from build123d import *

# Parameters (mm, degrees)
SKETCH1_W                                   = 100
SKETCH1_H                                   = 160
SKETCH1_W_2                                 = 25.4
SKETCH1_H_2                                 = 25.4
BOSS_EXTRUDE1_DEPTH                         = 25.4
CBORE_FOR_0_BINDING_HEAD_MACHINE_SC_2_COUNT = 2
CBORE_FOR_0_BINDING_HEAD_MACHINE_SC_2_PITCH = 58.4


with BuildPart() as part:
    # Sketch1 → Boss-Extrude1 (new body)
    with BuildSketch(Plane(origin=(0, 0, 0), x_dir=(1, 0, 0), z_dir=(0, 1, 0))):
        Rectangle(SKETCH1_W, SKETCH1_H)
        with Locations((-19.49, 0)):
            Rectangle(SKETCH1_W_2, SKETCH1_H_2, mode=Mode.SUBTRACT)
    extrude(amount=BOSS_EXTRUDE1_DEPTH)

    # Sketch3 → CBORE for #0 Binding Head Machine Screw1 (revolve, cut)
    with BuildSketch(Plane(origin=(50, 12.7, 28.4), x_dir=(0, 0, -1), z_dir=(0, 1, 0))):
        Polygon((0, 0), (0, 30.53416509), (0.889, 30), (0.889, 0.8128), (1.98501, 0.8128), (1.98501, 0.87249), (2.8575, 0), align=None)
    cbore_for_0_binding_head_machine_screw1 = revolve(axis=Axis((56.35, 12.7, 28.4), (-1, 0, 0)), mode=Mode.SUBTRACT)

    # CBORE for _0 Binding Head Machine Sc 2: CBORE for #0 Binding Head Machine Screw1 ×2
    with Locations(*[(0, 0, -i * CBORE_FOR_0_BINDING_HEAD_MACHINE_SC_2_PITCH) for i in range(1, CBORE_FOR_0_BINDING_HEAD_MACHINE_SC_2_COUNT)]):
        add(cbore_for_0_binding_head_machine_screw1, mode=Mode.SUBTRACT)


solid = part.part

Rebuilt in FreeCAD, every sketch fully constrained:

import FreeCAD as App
import Part
import Sketcher
Q = App.Units.Quantity

doc = App.newDocument("Part")
body = doc.addObject("PartDesign::Body", "Body")

sketch1 = doc.addObject("Sketcher::SketchObject", "Sketch")
body.addObject(sketch1)
sketch1.AttachmentSupport = (doc.XZ_Plane, [""])
sketch1.MapMode = "FlatFace"
sketch1.addGeometry(Part.LineSegment(App.Vector(-50, -80, 0), App.Vector(-50, 80, 0)), False)
sketch1.addGeometry(Part.LineSegment(App.Vector(-50, 80, 0), App.Vector(50, 80, 0)), False)
sketch1.addGeometry(Part.LineSegment(App.Vector(50, 80, 0), App.Vector(50, -80, 0)), False)
sketch1.addGeometry(Part.LineSegment(App.Vector(50, -80, 0), App.Vector(-50, -80, 0)), False)
sketch1.addGeometry(Part.LineSegment(App.Vector(-6.79, 12.7, 0), App.Vector(-32.19, 12.7, 0)), False)
sketch1.addGeometry(Part.LineSegment(App.Vector(-32.19, 12.7, 0), App.Vector(-32.19, -12.7, 0)), False)
sketch1.addGeometry(Part.LineSegment(App.Vector(-32.19, -12.7, 0), App.Vector(-6.79, -12.7, 0)), False)
sketch1.addGeometry(Part.LineSegment(App.Vector(-6.79, -12.7, 0), App.Vector(-6.79, 12.7, 0)), False)
sketch1.addConstraint(Sketcher.Constraint("Coincident", 0, 2, 1, 1))
sketch1.addConstraint(Sketcher.Constraint("Coincident", 1, 2, 2, 1))
sketch1.addConstraint(Sketcher.Constraint("Coincident", 2, 2, 3, 1))
sketch1.addConstraint(Sketcher.Constraint("Coincident", 3, 2, 0, 1))
sketch1.addConstraint(Sketcher.Constraint("Coincident", 4, 2, 5, 1))
sketch1.addConstraint(Sketcher.Constraint("Coincident", 5, 2, 6, 1))
sketch1.addConstraint(Sketcher.Constraint("Coincident", 6, 2, 7, 1))
sketch1.addConstraint(Sketcher.Constraint("Coincident", 7, 2, 4, 1))
sketch1.addConstraint(Sketcher.Constraint("Vertical", 0))
sketch1.addConstraint(Sketcher.Constraint("Horizontal", 1))
sketch1.addConstraint(Sketcher.Constraint("Vertical", 2))
sketch1.addConstraint(Sketcher.Constraint("Horizontal", 3))
sketch1.addConstraint(Sketcher.Constraint("Horizontal", 4))
sketch1.addConstraint(Sketcher.Constraint("Vertical", 5))
sketch1.addConstraint(Sketcher.Constraint("Horizontal", 6))
sketch1.addConstraint(Sketcher.Constraint("Vertical", 7))
sketch1.addConstraint(Sketcher.Constraint("Symmetric", 0, 2, 2, 2, -1, 1))
sketch1.addConstraint(Sketcher.Constraint("Equal", 6, 5))
sketch1.addConstraint(Sketcher.Constraint("DistanceX", 1, 1, 1, 2, 100.0))
sketch1.addConstraint(Sketcher.Constraint("DistanceY", 0, 1, 0, 2, 160.0))
sketch1.addConstraint(Sketcher.Constraint("DistanceX", 4, 2, 4, 1, 25.4))
sketch1.addConstraint(Sketcher.Constraint("DistanceY", -1, 1, 4, 2, 12.7))
sketch1.addConstraint(Sketcher.Constraint("DistanceX", 4, 2, -1, 1, 32.19))
pad1 = doc.addObject("PartDesign::Pad", "Pad")
body.addObject(pad1)
pad1.Profile = sketch1
pad1.Length = 25.4
pad1.Reversed = True

sketch2 = doc.addObject("Sketcher::SketchObject", "Sketch001")
body.addObject(sketch2)
sketch2.AttachmentSupport = (doc.XZ_Plane, [""])
sketch2.MapMode = "FlatFace"
sketch2.AttachmentOffset = App.Placement(App.Vector(0, 0, -12.7), App.Rotation())
sketch2.addGeometry(Part.LineSegment(App.Vector(19.465835, 28.4, 0), App.Vector(50, 28.4, 0)), False)
sketch2.addGeometry(Part.LineSegment(App.Vector(50, 28.4, 0), App.Vector(50, 25.5425, 0)), False)
sketch2.addGeometry(Part.LineSegment(App.Vector(50, 25.5425, 0), App.Vector(49.12751, 26.41499, 0)), False)
sketch2.addGeometry(Part.LineSegment(App.Vector(49.12751, 26.41499, 0), App.Vector(49.1872, 26.41499, 0)), False)
sketch2.addGeometry(Part.LineSegment(App.Vector(49.1872, 26.41499, 0), App.Vector(49.1872, 27.511, 0)), False)
sketch2.addGeometry(Part.LineSegment(App.Vector(49.1872, 27.511, 0), App.Vector(20, 27.511, 0)), False)
sketch2.addGeometry(Part.LineSegment(App.Vector(20, 27.511, 0), App.Vector(19.465835, 28.4, 0)), False)
sketch2.addGeometry(Part.LineSegment(App.Vector(50, 28.4, 0), App.Vector(19.465835, 28.4, 0)), True)
sketch2.addConstraint(Sketcher.Constraint("Coincident", 0, 2, 1, 1))
sketch2.addConstraint(Sketcher.Constraint("Coincident", 1, 2, 2, 1))
sketch2.addConstraint(Sketcher.Constraint("Coincident", 2, 2, 3, 1))
sketch2.addConstraint(Sketcher.Constraint("Coincident", 3, 2, 4, 1))
sketch2.addConstraint(Sketcher.Constraint("Coincident", 4, 2, 5, 1))
sketch2.addConstraint(Sketcher.Constraint("Coincident", 5, 2, 6, 1))
sketch2.addConstraint(Sketcher.Constraint("Coincident", 6, 2, 0, 1))
sketch2.addConstraint(Sketcher.Constraint("Horizontal", 0))
sketch2.addConstraint(Sketcher.Constraint("Vertical", 1))
sketch2.addConstraint(Sketcher.Constraint("Horizontal", 3))
sketch2.addConstraint(Sketcher.Constraint("Vertical", 4))
sketch2.addConstraint(Sketcher.Constraint("Horizontal", 5))
sketch2.addConstraint(Sketcher.Constraint("Horizontal", 7))
sketch2.addConstraint(Sketcher.Constraint("Coincident", 7, 1, 0, 2))
sketch2.addConstraint(Sketcher.Constraint("Equal", 0, 7))
sketch2.addConstraint(Sketcher.Constraint("Angle", 2, Q("135 deg")))
sketch2.addConstraint(Sketcher.Constraint("Angle", 6, Q("121 deg")))
sketch2.addConstraint(Sketcher.Constraint("DistanceX", -1, 1, 0, 2, 50.0))
sketch2.addConstraint(Sketcher.Constraint("DistanceX", -1, 1, 5, 2, 20.0))
sketch2.addConstraint(Sketcher.Constraint("DistanceY", -1, 1, 0, 2, 28.4))
sketch2.addConstraint(Sketcher.Constraint("DistanceX", 5, 2, 5, 1, 29.1872))
sketch2.addConstraint(Sketcher.Constraint("DistanceY", 1, 2, 1, 1, 2.8575))
sketch2.addConstraint(Sketcher.Constraint("DistanceY", -1, 1, 4, 2, 27.511))
sketch2.addConstraint(Sketcher.Constraint("DistanceX", 3, 1, 3, 2, 0.05969))
groove = doc.addObject("PartDesign::Groove", "Groove")
body.addObject(groove)
groove.Profile = sketch2
groove.ReferenceAxis = (sketch2, ["Axis0"])
groove.Angle = 360
doc.recompute()

linearpattern = doc.addObject("PartDesign::LinearPattern", "LinearPattern")
body.addObject(linearpattern)
linearpattern.Originals = [groove]
linearpattern.Direction = (doc.Z_Axis, [""])
linearpattern.Mode = "offset"
linearpattern.Offset = 58.4
linearpattern.Occurrences = 2
linearpattern.Reversed = True
body.Tip = linearpattern

doc.recompute()
